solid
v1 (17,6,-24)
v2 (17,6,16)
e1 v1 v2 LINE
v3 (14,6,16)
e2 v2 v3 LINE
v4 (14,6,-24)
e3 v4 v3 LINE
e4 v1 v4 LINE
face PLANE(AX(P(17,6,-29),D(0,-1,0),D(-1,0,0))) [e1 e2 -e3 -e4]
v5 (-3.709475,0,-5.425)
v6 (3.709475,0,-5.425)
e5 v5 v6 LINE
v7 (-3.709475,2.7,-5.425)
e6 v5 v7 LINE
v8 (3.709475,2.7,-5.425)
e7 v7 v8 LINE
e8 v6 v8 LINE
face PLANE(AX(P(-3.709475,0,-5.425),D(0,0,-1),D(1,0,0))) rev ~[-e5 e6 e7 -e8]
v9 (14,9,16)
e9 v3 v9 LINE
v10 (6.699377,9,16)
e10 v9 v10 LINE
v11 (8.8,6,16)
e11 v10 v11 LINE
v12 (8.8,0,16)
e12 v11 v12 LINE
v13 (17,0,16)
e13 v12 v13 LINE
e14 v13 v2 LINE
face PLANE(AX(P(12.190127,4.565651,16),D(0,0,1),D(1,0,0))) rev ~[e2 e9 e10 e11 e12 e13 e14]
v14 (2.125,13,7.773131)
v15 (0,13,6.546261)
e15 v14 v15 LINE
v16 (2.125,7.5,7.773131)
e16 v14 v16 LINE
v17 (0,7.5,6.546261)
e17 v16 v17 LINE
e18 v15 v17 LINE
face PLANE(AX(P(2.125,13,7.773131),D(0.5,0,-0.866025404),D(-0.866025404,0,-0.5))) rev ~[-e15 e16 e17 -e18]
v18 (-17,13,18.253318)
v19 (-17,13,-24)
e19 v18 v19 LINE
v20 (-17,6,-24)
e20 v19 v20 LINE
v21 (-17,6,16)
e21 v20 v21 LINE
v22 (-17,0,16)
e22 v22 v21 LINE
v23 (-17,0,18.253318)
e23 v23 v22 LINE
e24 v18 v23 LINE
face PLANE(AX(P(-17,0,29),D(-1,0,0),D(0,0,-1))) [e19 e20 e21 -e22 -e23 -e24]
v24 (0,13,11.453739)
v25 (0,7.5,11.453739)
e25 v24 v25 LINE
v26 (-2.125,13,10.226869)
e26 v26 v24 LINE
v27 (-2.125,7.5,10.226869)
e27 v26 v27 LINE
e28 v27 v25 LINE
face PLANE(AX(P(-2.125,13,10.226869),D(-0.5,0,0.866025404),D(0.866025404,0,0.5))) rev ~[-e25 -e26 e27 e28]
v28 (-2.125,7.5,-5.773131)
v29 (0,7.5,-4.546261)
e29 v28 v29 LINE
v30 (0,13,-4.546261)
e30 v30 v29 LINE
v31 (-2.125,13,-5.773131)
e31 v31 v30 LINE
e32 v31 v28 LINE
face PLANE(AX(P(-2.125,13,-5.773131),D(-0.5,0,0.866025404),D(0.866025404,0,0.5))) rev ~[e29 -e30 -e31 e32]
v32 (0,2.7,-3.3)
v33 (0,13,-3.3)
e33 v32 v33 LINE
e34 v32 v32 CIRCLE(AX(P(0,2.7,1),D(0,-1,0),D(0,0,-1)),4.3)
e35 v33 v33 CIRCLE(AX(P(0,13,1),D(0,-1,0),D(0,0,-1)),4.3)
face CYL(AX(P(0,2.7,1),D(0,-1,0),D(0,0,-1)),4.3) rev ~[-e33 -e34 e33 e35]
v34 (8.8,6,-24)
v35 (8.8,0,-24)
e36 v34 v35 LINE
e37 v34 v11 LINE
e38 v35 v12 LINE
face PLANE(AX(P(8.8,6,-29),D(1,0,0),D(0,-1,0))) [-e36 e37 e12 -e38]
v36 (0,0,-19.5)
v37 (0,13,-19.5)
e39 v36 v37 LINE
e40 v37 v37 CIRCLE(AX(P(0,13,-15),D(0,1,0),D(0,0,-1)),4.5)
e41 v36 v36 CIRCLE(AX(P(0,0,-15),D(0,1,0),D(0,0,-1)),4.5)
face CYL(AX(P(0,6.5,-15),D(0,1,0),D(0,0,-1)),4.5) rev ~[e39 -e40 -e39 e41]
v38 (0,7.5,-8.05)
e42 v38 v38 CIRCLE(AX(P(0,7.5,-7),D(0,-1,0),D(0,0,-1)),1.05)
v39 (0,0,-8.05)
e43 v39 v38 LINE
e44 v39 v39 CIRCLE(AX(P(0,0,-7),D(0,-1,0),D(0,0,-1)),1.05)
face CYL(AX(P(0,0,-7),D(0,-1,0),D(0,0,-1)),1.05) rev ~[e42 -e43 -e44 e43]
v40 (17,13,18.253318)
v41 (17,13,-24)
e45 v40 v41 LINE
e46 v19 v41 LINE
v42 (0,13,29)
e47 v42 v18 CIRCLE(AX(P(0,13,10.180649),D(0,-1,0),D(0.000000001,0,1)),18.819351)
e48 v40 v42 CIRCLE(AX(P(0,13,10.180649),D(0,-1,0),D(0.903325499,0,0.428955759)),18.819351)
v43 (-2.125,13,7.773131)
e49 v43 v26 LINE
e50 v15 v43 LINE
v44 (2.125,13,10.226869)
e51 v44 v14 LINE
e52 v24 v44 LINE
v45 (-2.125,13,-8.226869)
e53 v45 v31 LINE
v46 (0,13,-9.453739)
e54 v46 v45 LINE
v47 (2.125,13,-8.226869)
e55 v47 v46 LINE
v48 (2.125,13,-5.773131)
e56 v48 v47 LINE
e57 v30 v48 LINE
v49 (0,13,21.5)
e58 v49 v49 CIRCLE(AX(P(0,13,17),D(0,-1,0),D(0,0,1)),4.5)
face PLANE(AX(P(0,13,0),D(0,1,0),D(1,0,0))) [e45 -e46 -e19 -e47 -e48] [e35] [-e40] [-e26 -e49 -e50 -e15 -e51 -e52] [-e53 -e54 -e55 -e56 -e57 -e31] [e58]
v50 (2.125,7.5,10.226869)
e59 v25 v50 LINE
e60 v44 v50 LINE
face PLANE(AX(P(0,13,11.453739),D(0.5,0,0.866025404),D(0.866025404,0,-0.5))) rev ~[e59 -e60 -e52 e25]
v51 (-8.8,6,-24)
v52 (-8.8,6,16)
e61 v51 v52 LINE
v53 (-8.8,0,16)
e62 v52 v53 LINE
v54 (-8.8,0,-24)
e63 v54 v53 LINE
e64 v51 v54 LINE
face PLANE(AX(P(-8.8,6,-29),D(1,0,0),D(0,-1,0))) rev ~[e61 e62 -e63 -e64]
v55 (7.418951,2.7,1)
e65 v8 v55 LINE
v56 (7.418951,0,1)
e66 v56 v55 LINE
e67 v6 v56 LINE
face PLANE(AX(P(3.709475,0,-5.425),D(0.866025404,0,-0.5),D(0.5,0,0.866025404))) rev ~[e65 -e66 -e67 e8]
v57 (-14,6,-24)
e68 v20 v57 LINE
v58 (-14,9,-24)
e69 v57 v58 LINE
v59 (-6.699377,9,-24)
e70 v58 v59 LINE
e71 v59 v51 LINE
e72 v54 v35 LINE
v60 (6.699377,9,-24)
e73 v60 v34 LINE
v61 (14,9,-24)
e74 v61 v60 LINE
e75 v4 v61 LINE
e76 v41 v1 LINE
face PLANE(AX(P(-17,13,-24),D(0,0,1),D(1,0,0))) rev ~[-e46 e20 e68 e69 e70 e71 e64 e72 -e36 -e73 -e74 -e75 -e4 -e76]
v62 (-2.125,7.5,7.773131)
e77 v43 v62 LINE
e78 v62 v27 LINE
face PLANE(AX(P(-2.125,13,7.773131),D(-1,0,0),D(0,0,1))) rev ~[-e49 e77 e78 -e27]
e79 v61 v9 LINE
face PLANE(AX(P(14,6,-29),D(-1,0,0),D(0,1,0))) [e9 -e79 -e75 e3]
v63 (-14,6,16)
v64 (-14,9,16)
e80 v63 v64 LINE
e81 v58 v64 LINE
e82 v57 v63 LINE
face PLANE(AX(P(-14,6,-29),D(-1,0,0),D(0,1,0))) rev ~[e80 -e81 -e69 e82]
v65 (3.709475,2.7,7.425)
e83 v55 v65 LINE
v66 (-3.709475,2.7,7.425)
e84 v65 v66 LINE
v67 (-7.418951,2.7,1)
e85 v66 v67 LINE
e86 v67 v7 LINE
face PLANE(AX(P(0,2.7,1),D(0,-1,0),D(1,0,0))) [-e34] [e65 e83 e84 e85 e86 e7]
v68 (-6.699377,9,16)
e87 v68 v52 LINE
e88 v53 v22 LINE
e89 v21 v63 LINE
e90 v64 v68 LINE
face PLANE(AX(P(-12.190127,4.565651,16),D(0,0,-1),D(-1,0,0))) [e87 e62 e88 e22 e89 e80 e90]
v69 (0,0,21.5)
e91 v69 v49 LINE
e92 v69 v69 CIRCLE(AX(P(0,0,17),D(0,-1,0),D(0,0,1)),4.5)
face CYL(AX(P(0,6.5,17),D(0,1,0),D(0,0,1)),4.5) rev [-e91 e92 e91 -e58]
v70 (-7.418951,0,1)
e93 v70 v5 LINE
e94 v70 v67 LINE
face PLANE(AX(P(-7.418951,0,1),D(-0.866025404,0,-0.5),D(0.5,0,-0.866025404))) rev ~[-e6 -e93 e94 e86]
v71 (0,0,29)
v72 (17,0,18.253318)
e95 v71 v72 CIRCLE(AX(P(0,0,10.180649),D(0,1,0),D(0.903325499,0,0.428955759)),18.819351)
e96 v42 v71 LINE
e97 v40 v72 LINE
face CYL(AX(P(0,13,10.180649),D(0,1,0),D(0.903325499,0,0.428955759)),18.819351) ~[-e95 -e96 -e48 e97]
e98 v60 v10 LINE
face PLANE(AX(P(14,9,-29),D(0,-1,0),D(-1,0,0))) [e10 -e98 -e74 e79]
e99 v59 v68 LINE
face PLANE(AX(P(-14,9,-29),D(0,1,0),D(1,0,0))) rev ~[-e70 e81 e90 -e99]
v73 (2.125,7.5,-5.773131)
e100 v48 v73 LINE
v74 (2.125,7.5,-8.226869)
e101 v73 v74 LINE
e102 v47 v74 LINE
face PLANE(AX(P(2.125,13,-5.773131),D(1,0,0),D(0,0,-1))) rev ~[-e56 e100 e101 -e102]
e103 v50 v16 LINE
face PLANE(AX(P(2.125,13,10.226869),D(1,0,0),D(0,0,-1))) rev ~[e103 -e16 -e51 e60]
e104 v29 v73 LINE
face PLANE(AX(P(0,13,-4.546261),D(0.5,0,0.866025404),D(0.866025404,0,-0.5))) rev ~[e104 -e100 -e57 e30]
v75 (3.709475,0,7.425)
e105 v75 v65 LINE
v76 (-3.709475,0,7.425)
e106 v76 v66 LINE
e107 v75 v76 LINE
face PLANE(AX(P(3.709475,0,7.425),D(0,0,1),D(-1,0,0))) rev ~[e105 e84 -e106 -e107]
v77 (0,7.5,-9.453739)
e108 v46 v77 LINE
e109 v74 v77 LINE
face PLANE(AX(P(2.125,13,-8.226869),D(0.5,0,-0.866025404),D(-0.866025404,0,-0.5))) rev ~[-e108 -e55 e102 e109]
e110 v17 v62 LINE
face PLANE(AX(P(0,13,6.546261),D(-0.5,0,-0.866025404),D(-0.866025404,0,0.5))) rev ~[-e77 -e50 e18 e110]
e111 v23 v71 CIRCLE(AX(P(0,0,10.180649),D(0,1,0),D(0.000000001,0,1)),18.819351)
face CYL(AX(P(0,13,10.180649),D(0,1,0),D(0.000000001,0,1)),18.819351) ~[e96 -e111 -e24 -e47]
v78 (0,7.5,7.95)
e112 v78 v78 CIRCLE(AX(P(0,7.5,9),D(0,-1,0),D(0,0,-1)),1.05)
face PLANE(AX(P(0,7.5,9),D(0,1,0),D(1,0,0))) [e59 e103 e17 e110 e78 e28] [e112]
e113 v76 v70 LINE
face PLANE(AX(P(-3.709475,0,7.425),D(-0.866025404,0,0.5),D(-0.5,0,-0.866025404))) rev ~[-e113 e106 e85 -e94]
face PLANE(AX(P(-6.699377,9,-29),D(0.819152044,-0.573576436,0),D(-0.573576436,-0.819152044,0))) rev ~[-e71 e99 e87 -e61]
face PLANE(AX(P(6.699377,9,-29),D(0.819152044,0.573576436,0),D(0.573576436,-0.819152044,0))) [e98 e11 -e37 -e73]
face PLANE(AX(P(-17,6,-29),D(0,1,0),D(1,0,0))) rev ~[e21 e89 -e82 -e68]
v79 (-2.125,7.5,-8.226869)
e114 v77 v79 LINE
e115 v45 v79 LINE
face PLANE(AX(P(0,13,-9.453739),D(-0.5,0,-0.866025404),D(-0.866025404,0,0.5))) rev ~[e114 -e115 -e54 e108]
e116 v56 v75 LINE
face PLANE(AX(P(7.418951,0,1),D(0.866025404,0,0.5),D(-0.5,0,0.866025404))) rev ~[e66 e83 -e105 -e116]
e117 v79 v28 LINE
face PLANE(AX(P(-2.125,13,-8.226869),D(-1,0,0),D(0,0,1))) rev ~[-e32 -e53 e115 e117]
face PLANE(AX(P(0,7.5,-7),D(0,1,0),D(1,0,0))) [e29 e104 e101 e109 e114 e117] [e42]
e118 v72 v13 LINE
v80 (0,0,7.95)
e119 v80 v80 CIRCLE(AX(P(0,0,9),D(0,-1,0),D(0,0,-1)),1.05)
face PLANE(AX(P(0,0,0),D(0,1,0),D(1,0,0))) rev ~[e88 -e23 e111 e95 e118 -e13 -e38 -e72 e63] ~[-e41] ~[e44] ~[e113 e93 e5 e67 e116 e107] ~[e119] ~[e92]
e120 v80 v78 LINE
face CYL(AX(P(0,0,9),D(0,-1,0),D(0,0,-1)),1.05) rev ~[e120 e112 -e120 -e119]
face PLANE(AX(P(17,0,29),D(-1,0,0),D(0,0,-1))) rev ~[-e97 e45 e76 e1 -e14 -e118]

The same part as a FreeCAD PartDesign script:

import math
import FreeCAD as App
import Part
import Sketcher
from FreeCAD import Vector
Q = App.Units.Quantity


def add_polygon(sketch, points):
    """Adds a closed chain of lines whose ends are joined by coincident constraints."""
    first, n = sketch.GeometryCount, len(points)
    for a, b in zip(points, points[1:] + points[:1]):
        sketch.addGeometry(Part.LineSegment(App.Vector(*a, 0), App.Vector(*b, 0)), False)
    for i in range(n):
        sketch.addConstraint(Sketcher.Constraint("Coincident", first + i, 2, first + (i + 1) % n, 1))

doc = App.newDocument("Part")
body = doc.addObject("PartDesign::Body", "Body")

sketch1 = body.newObject("Sketcher::SketchObject", "Sketch")
sketch1.AttachmentSupport = (doc.getObject("XZ_Plane"), [""])
sketch1.MapMode = "FlatFace"
add_polygon(sketch1, [(-17, -29), (-17, 29), (17, 29), (17, -29)])
sketch1.addConstraint([
    Sketcher.Constraint("Vertical", 0),
    Sketcher.Constraint("Horizontal", 1),
    Sketcher.Constraint("Vertical", 2),
    Sketcher.Constraint("Horizontal", 3),
    Sketcher.Constraint("Symmetric", 0, 2, 2, 2, -1, 1),
    Sketcher.Constraint("DistanceX", 1, 1, 1, 2, Q("34 mm")),
    Sketcher.Constraint("DistanceY", 0, 1, 0, 2, Q("58 mm")),
])
pad1 = body.newObject("PartDesign::Pad", "Pad")
pad1.Profile = sketch1
pad1.Length = 13
pad1.Reversed = True

sketch2 = body.newObject("Sketcher::SketchObject", "Sketch001")
sketch2.AttachmentSupport = (doc.getObject("YZ_Plane"), [""])
sketch2.MapMode = "FlatFace"
add_polygon(sketch2, [(13, 17), (0, 17), (0, 12.5), (13, 12.5)])
sketch2.addGeometry(Part.LineSegment(Vector(13, 17, 0), Vector(0, 17, 0)), True)
sketch2.addConstraint([
    Sketcher.Constraint("Horizontal", 0),
    Sketcher.Constraint("Vertical", 1),
    Sketcher.Constraint("Horizontal", 2),
    Sketcher.Constraint("Vertical", 3),
    Sketcher.Constraint("Horizontal", 4),
    Sketcher.Constraint("Coincident", 4, 1, 3, 2),
    Sketcher.Constraint("PointOnObject", 0, 2, -2),
    Sketcher.Constraint("PointOnObject", 4, 2, -2),
    Sketcher.Constraint("DistanceX", 0, 2, 0, 1, Q("13 mm")),
    Sketcher.Constraint("DistanceY", 1, 2, 1, 1, Q("4.5 mm")),
    Sketcher.Constraint("DistanceY", -1, 1, 0, 2, Q("17 mm")),
])
groove = body.newObject("PartDesign::Groove", "Groove")
groove.Profile = sketch2
groove.ReferenceAxis = (sketch2, ["Axis0"])
groove.Angle = 360

sketch3 = body.newObject("Sketcher::SketchObject", "Sketch002")
sketch3.AttachmentSupport = (doc.getObject("XZ_Plane"), [""])
sketch3.MapMode = "FlatFace"
add_polygon(sketch3, [(4, -5), (7, 1), (4, 7), (-4, 7), (-7, 1), (-4, -5)])
sketch3.addConstraint([
    Sketcher.Constraint("Horizontal", 2),
    Sketcher.Constraint("Horizontal", 5),
    Sketcher.Constraint("Symmetric", 0, 2, 3, 2, -2),
    Sketcher.Constraint("Parallel", 0, 3),
    Sketcher.Constraint("Parallel", 1, 4),
    Sketcher.Constraint("Vertical", 2, 2, 4, 2),
    Sketcher.Constraint("Vertical", 1, 2, 5, 2),
    Sketcher.Constraint("Angle", 0, Q("60 deg")),
    Sketcher.Constraint("DistanceY", -1, 1, 0, 2, Q("1 mm")),
    Sketcher.Constraint("DistanceY", 4, 2, 2, 2, Q("12.85 mm")),
    Sketcher.Constraint("DistanceX", 2, 2, 2, 1, Q("7.418951 mm")),
])
pocket1 = body.newObject("PartDesign::Pocket", "Pocket")
pocket1.Profile = sketch3
pocket1.Length = 2.7

sketch4 = body.newObject("Sketcher::SketchObject", "Sketch003")
sketch4.AttachmentSupport = (doc.getObject("XZ_Plane"), [""])
sketch4.MapMode = "FlatFace"
sketch4.AttachmentOffset = App.Placement(Vector(0, 0, -2.7), App.Rotation())
sketch4.addGeometry(Part.Circle(Vector(0, 1, 0), Vector(0, 0, 1), 4.3), False)
sketch4.addConstraint([
    Sketcher.Constraint("PointOnObject", 0, 3, -2),
    Sketcher.Constraint("Diameter", 0, Q("8.6 mm")),
    Sketcher.Constraint("DistanceY", -1, 1, 0, 3, Q("1 mm")),
])
pocket2 = body.newObject("PartDesign::Pocket", "Pocket001")
pocket2.Profile = sketch4
pocket2.Type = "ThroughAll"

sketch5 = body.newObject("Sketcher::SketchObject", "Sketch004")
sketch5.AttachmentSupport = (doc.getObject("YZ_Plane"), [""])
sketch5.MapMode = "FlatFace"
add_polygon(sketch5, [(13, -15), (0, -15), (0, -19.5), (13, -19.5)])
sketch5.addGeometry(Part.LineSegment(Vector(0, -15, 0), Vector(13, -15, 0)), True)
sketch5.addConstraint([
    Sketcher.Constraint("Horizontal", 0),
    Sketcher.Constraint("Vertical", 1),
    Sketcher.Constraint("Horizontal", 2),
    Sketcher.Constraint("Vertical", 3),
    Sketcher.Constraint("Horizontal", 4),
    Sketcher.Constraint("Coincident", 4, 1, 0, 2),
    Sketcher.Constraint("PointOnObject", 0, 2, -2),
    Sketcher.Constraint("Vertical", 2, 2, 4, 2),
    Sketcher.Constraint("DistanceX", 0, 2, 0, 1, Q("13 mm")),
    Sketcher.Constraint("DistanceY", 1, 2, 1, 1, Q("4.5 mm")),
    Sketcher.Constraint("DistanceY", 0, 2, -1, 1, Q("15 mm")),
])
groove2 = body.newObject("PartDesign::Groove", "Groove001")
groove2.Profile = sketch5
groove2.ReferenceAxis = (sketch5, ["Axis0"])
groove2.Angle = 360

sketch6 = body.newObject("Sketcher::SketchObject", "Sketch005")
sketch6.AttachmentSupport = (doc.getObject("XY_Plane"), [""])
sketch6.MapMode = "FlatFace"
sketch6.AttachmentOffset = App.Placement(Vector(0, 0, -29), App.Rotation())
add_polygon(sketch6, [(14, 6), (17, 6), (17, 0), (8.8, 0), (8.8, 6), (6.7, 9), (14, 9)])
add_polygon(sketch6, [(-8.8, 0), (-17, 0), (-17, 6), (-14, 6), (-14, 9), (-6.7, 9), (-8.8, 6)])
sketch6.addConstraint([
    Sketcher.Constraint("Horizontal", 0),
    Sketcher.Constraint("Vertical", 1),
    Sketcher.Constraint("Horizontal", 2),
    Sketcher.Constraint("Vertical", 3),
    Sketcher.Constraint("Horizontal", 5),
    Sketcher.Constraint("Vertical", 6),
    Sketcher.Constraint("Horizontal", 7),
    Sketcher.Constraint("Vertical", 8),
    Sketcher.Constraint("Horizontal", 9),
    Sketcher.Constraint("Vertical", 10),
    Sketcher.Constraint("Horizontal", 11),
    Sketcher.Constraint("Vertical", 13),
    Sketcher.Constraint("Symmetric", 1, 2, 7, 2, -1, 1),
    Sketcher.Constraint("Symmetric", 6, 2, 9, 2, -2),
    Sketcher.Constraint("Symmetric", 4, 2, 11, 2, -2),
    Sketcher.Constraint("Symmetric", 3, 2, 12, 2, -2),
    Sketcher.Constraint("PointOnObject", 1, 2, -1),
    Sketcher.Constraint("Horizontal", 0, 2, 3, 2),
    Sketcher.Constraint("Equal", 9, 6),
    Sketcher.Constraint("DistanceX", 0, 1, 0, 2, Q("3 mm")),
    Sketcher.Constraint("DistanceY", 1, 2, 1, 1, Q("6 mm")),
    Sketcher.Constraint("Angle", 4, Q("125 deg")),
    Sketcher.Constraint("DistanceX", 2, 2, 2, 1, Q("8.2 mm")),
    Sketcher.Constraint("DistanceX", -1, 1, 0, 2, Q("17 mm")),
])
pocket3 = body.newObject("PartDesign::Pocket", "Pocket002")
pocket3.Profile = sketch6
pocket3.Length = 45
pocket3.Reversed = True

sketch7 = body.newObject("Sketcher::SketchObject", "Sketch006")
sketch7.AttachmentSupport = (doc.getObject("XZ_Plane"), [""])
sketch7.MapMode = "FlatFace"
sketch7.AttachmentOffset = App.Placement(Vector(0, 0, -13), App.Rotation())
sketch7.addGeometry([
    Part.LineSegment(Vector(17, 29, 0), Vector(17, 18, 0)),
    Part.ArcOfCircle(Part.Circle(Vector(0, 10, 0), Vector(0, 0, 1), 19), math.radians(25), math.radians(90)),
    Part.LineSegment(Vector(0, 29, 0), Vector(17, 29, 0)),
    Part.LineSegment(Vector(-17, 29, 0), Vector(0, 29, 0)),
    Part.ArcOfCircle(Part.Circle(Vector(0, 10, 0), Vector(0, 0, 1), 19), math.radians(90), math.radians(155)),
    Part.LineSegment(Vector(-17, 18, 0), Vector(-17, 29, 0)),
], False)
sketch7.addConstraint([
    Sketcher.Constraint("Coincident", 0, 2, 1, 1),
    Sketcher.Constraint("Tangent", 1, 2, 2, 1),
    Sketcher.Constraint("Coincident", 2, 2, 0, 1),
    Sketcher.Constraint("Tangent", 3, 2, 4, 1),
    Sketcher.Constraint("Coincident", 4, 2, 5, 1),
    Sketcher.Constraint("Coincident", 5, 2, 3, 1),
    Sketcher.Constraint("Vertical", 0),
    Sketcher.Constraint("Horizontal", 2),
    Sketcher.Constraint("Horizontal", 3),
    Sketcher.Constraint("Vertical", 5),
    Sketcher.Constraint("Coincident", 4, 3, 1, 3),
    Sketcher.Constraint("Equal", 1, 4),
    Sketcher.Constraint("Symmetric", 0, 2, 4, 2, -2),
    Sketcher.Constraint("DistanceX", 2, 1, 2, 2, Q("17 mm")),
    Sketcher.Constraint("DistanceY", -1, 1, 1, 2, Q("29 mm")),
    Sketcher.Constraint("Radius", 1, Q("18.819351 mm")),
])
pocket4 = body.newObject("PartDesign::Pocket", "Pocket003")
pocket4.Profile = sketch7
pocket4.Type = "ThroughAll"
pocket4.Reversed = True

sketch8 = body.newObject("Sketcher::SketchObject", "Sketch007")
sketch8.AttachmentSupport = (doc.getObject("XZ_Plane"), [""])
sketch8.MapMode = "FlatFace"
sketch8.addGeometry([
    Part.Circle(Vector(0, -7, 0), Vector(0, 0, 1), 1.1),
    Part.Circle(Vector(0, 9, 0), Vector(0, 0, 1), 1.1),
], False)
sketch8.addConstraint([
    Sketcher.Constraint("Equal", 0, 1),
    Sketcher.Constraint("PointOnObject", 0, 3, -2),
    Sketcher.Constraint("PointOnObject", 1, 3, -2),
    Sketcher.Constraint("Diameter", 0, Q("2.1 mm")),
    Sketcher.Constraint("DistanceY", 0, 3, -1, 1, Q("7 mm")),
    Sketcher.Constraint("DistanceY", -1, 1, 1, 3, Q("9 mm")),
])
pocket5 = body.newObject("PartDesign::Pocket", "Pocket004")
pocket5.Profile = sketch8
pocket5.Length = 13

sketch9 = body.newObject("Sketcher::SketchObject", "Sketch008")
sketch9.AttachmentSupport = (doc.getObject("XZ_Plane"), [""])
sketch9.MapMode = "FlatFace"
sketch9.AttachmentOffset = App.Placement(Vector(0, 0, -13), App.Rotation())
add_polygon(sketch9, [(0, 6.5), (-2.1, 7.8), (-2.1, 10.2), (0, 11.5), (2.1, 10.2), (2.1, 7.8)])
add_polygon(sketch9, [(0, -9.5), (-2.1, -8.2), (-2.1, -5.8), (0, -4.5), (2.1, -5.8), (2.1, -8.2)])
sketch9.addConstraint([
    Sketcher.Constraint("Vertical", 1),
    Sketcher.Constraint("Vertical", 4),
    Sketcher.Constraint("Vertical", 7),
    Sketcher.Constraint("Vertical", 10),
    Sketcher.Constraint("Symmetric", 1, 2, 3, 2, -2),
    Sketcher.Constraint("Symmetric", 7, 2, 9, 2, -2),
    Sketcher.Constraint("PointOnObject", 2, 2, -2),
    Sketcher.Constraint("PointOnObject", 5, 2, -2),
    Sketcher.Constraint("PointOnObject", 8, 2, -2),
    Sketcher.Constraint("PointOnObject", 11, 2, -2),
    Sketcher.Constraint("Parallel", 0, 3),
    Sketcher.Constraint("Parallel", 2, 5),
    Sketcher.Constraint("Parallel", 3, 6),
    Sketcher.Constraint("Parallel", 5, 8),
    Sketcher.Constraint("Parallel", 8, 11),
    Sketcher.Constraint("Vertical", 1, 2, 6, 2),
    Sketcher.Constraint("Equal", 4, 7),
    Sketcher.Constraint("Angle", 0, Q("150 deg")),
    Sketcher.Constraint("DistanceY", 6, 2, 0, 2, Q("16 mm")),
    Sketcher.Constraint("DistanceX", 1, 2, 3, 2, Q("4.25 mm")),
    Sketcher.Constraint("DistanceY", 1, 1, 1, 2, Q("2.453739 mm")),
    Sketcher.Constraint("DistanceY", -1, 1, 0, 2, Q("7.773131 mm")),
])
pocket6 = body.newObject("PartDesign::Pocket", "Pocket005")
pocket6.Profile = sketch9
pocket6.Length = 5.5
pocket6.Reversed = True

sketch10 = body.newObject("Sketcher::SketchObject", "Sketch009")
sketch10.AttachmentSupport = (doc.getObject("XZ_Plane"), [""])
sketch10.MapMode = "FlatFace"
sketch10.AttachmentOffset = App.Placement(Vector(0, 0, -13), App.Rotation())
add_polygon(sketch10, [(-17, -29), (-17, -24), (17, -24), (17, -29)])
sketch10.addConstraint([
    Sketcher.Constraint("Vertical", 0),
    Sketcher.Constraint("Horizontal", 1),
    Sketcher.Constraint("Vertical", 2),
    Sketcher.Constraint("Horizontal", 3),
    Sketcher.Constraint("DistanceX", 1, 1, 1, 2, Q("34 mm")),
    Sketcher.Constraint("DistanceY", 0, 1, 0, 2, Q("5 mm")),
    Sketcher.Constraint("DistanceX", 0, 2, -1, 1, Q("17 mm")),
    Sketcher.Constraint("DistanceY", 0, 2, -1, 1, Q("24 mm")),
])
pocket7 = body.newObject("PartDesign::Pocket", "Pocket006")
pocket7.Profile = sketch10
pocket7.Length = 15
pocket7.Reversed = True

doc.recompute()
